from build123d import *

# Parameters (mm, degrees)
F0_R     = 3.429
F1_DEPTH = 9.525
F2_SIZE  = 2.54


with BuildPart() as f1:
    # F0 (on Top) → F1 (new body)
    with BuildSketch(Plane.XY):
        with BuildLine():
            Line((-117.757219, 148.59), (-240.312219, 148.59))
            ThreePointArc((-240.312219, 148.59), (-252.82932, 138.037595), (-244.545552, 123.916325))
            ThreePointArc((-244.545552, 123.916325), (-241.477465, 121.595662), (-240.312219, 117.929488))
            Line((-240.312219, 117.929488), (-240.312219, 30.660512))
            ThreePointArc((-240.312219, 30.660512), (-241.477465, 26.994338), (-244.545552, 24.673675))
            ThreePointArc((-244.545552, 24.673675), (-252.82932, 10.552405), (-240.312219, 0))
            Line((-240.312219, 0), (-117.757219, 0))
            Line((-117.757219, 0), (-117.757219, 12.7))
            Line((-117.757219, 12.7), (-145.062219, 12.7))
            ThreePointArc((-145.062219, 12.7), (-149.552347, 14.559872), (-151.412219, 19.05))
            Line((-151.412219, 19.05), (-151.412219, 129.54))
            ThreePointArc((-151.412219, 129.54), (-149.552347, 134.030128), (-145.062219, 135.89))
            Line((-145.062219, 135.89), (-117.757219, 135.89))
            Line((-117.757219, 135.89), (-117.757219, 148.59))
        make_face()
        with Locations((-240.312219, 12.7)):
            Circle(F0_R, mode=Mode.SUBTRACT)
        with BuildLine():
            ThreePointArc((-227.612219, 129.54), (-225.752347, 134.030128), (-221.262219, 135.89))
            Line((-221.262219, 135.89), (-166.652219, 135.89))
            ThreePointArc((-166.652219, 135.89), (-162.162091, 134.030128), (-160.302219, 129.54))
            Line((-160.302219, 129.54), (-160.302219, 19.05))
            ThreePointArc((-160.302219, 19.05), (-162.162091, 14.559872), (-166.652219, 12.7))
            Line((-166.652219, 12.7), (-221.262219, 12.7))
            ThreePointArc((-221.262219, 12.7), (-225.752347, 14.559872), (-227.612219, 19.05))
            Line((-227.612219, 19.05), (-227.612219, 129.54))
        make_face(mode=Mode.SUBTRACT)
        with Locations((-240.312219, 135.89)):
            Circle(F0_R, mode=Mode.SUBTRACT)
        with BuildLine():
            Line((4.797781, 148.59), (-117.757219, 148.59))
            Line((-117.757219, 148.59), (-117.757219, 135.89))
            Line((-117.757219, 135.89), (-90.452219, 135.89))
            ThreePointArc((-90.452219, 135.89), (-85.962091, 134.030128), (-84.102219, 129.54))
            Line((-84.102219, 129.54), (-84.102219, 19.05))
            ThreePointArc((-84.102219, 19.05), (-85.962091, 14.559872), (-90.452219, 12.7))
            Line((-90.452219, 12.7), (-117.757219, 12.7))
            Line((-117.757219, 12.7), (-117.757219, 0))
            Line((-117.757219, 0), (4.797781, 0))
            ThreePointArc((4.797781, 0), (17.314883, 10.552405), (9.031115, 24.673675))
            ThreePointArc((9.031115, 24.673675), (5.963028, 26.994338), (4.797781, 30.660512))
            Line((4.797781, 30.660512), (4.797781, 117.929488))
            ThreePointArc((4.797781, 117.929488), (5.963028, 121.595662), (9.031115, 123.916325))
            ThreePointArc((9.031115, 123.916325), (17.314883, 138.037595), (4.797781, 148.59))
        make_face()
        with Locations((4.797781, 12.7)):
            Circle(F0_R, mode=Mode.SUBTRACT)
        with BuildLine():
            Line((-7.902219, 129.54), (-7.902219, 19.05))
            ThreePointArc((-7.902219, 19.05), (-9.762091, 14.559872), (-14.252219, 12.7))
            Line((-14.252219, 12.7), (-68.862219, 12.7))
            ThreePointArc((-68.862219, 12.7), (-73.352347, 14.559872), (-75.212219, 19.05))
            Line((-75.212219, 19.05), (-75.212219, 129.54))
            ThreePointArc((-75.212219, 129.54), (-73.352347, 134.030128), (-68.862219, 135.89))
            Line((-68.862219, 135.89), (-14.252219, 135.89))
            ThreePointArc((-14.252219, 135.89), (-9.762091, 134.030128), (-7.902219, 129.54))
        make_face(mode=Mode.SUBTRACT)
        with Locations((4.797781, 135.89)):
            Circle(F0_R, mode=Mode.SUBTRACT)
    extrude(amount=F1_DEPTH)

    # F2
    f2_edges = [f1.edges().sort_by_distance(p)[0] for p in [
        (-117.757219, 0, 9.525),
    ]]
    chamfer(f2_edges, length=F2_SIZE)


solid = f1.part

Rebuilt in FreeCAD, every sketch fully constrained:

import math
import FreeCAD as App
import Part
import Sketcher

V = App.Vector
Q = App.Units.Quantity


def edges_at(feature, points):
    """Names of the edges that pass closest to the given points."""
    edges = feature.Shape.Edges
    near = lambda p: min(range(len(edges)), key=lambda i: edges[i].distToShape(Part.Vertex(*p))[0])
    return sorted({f"Edge{near(p) + 1}" for p in points})

doc = App.newDocument("Part")
body = doc.addObject("PartDesign::Body", "Body")

# Sketch on XY plane
sketch1 = body.newObject("Sketcher::SketchObject", "Sketch")
sketch1.AttachmentSupport = (doc.getObject("XY_Plane"), [""])
sketch1.MapMode = "FlatFace"
sketch1.addGeometry([
    Part.ArcOfCircle(Part.Circle(V(-240.3, 135.9, 0), V(0, 0, 1), 12.7), math.radians(90), math.radians(251)),  # 0
    Part.ArcOfCircle(Part.Circle(V(-246.7, 117.9, 0), V(0, 0, 1), 6.3), math.radians(0), math.radians(71)),  # 1
    Part.LineSegment(V(-240.3, 117.9, 0), V(-240.3, 30.7, 0)),  # 2
    Part.ArcOfCircle(Part.Circle(V(-246.7, 30.7, 0), V(0, 0, 1), 6.3), math.radians(-71), math.radians(0)),  # 3
    Part.ArcOfCircle(Part.Circle(V(-240.3, 12.7, 0), V(0, 0, 1), 12.7), math.radians(109), math.radians(270)),  # 4
    Part.LineSegment(V(-240.3, 0, 0), V(4.8, 0, 0)),  # 5
    Part.ArcOfCircle(Part.Circle(V(4.8, 12.7, 0), V(0, 0, 1), 12.7), math.radians(-90), math.radians(71)),  # 6
    Part.ArcOfCircle(Part.Circle(V(11.1, 30.7, 0), V(0, 0, 1), 6.3), math.radians(-180), math.radians(-109)),  # 7
    Part.LineSegment(V(4.8, 30.7, 0), V(4.8, 117.9, 0)),  # 8
    Part.ArcOfCircle(Part.Circle(V(11.1, 117.9, 0), V(0, 0, 1), 6.3), math.radians(109), math.radians(180)),  # 9
    Part.ArcOfCircle(Part.Circle(V(4.8, 135.9, 0), V(0, 0, 1), 12.7), math.radians(-71), math.radians(90)),  # 10
    Part.LineSegment(V(4.8, 148.6, 0), V(-240.3, 148.6, 0)),  # 11
    Part.Circle(V(-240.3, 12.7, 0), V(0, 0, 1), 3.4),  # 12
    Part.LineSegment(V(-227.6, 19.1, 0), V(-227.6, 129.5, 0)),  # 13
    Part.ArcOfCircle(Part.Circle(V(-221.3, 129.5, 0), V(0, 0, 1), 6.4), math.radians(90), math.radians(180)),  # 14
    Part.LineSegment(V(-221.3, 135.9, 0), V(-166.7, 135.9, 0)),  # 15
    Part.ArcOfCircle(Part.Circle(V(-166.7, 129.5, 0), V(0, 0, 1), 6.4), math.radians(0), math.radians(90)),  # 16
    Part.LineSegment(V(-160.3, 129.5, 0), V(-160.3, 19.1, 0)),  # 17
    Part.ArcOfCircle(Part.Circle(V(-166.7, 19.1, 0), V(0, 0, 1), 6.4), math.radians(-90), math.radians(0)),  # 18
    Part.LineSegment(V(-166.7, 12.7, 0), V(-221.3, 12.7, 0)),  # 19
    Part.ArcOfCircle(Part.Circle(V(-221.3, 19.1, 0), V(0, 0, 1), 6.4), math.radians(-180), math.radians(-90)),  # 20
    Part.Circle(V(4.8, 12.7, 0), V(0, 0, 1), 3.4),  # 21
    Part.LineSegment(V(-145.1, 135.9, 0), V(-90.5, 135.9, 0)),  # 22
    Part.ArcOfCircle(Part.Circle(V(-90.5, 129.5, 0), V(0, 0, 1), 6.4), math.radians(0), math.radians(90)),  # 23
    Part.LineSegment(V(-84.1, 129.5, 0), V(-84.1, 19.1, 0)),  # 24
    Part.ArcOfCircle(Part.Circle(V(-90.5, 19.1, 0), V(0, 0, 1), 6.4), math.radians(-90), math.radians(0)),  # 25
    Part.LineSegment(V(-90.5, 12.7, 0), V(-145.1, 12.7, 0)),  # 26
    Part.ArcOfCircle(Part.Circle(V(-145.1, 19.1, 0), V(0, 0, 1), 6.4), math.radians(-180), math.radians(-90)),  # 27
    Part.LineSegment(V(-151.4, 19.1, 0), V(-151.4, 129.5, 0)),  # 28
    Part.ArcOfCircle(Part.Circle(V(-145.1, 129.5, 0), V(0, 0, 1), 6.4), math.radians(90), math.radians(180)),  # 29
    Part.Circle(V(-240.3, 135.9, 0), V(0, 0, 1), 3.4),  # 30
    Part.ArcOfCircle(Part.Circle(V(-14.3, 129.5, 0), V(0, 0, 1), 6.4), math.radians(0), math.radians(90)),  # 31
    Part.LineSegment(V(-7.9, 129.5, 0), V(-7.9, 19.1, 0)),  # 32
    Part.ArcOfCircle(Part.Circle(V(-14.3, 19.1, 0), V(0, 0, 1), 6.4), math.radians(-90), math.radians(0)),  # 33
    Part.LineSegment(V(-14.3, 12.7, 0), V(-68.9, 12.7, 0)),  # 34
    Part.ArcOfCircle(Part.Circle(V(-68.9, 19.1, 0), V(0, 0, 1), 6.4), math.radians(-180), math.radians(-90)),  # 35
    Part.LineSegment(V(-75.2, 19.1, 0), V(-75.2, 129.5, 0)),  # 36
    Part.ArcOfCircle(Part.Circle(V(-68.9, 129.5, 0), V(0, 0, 1), 6.4), math.radians(90), math.radians(180)),  # 37
    Part.LineSegment(V(-68.9, 135.9, 0), V(-14.3, 135.9, 0)),  # 38
    Part.Circle(V(4.8, 135.9, 0), V(0, 0, 1), 3.4),  # 39
], False)
sketch1.addConstraint([
    Sketcher.Constraint("Tangent", 0, 2, 1, 2),
    Sketcher.Constraint("Tangent", 1, 1, 2, 1),
    Sketcher.Constraint("Tangent", 2, 2, 3, 2),
    Sketcher.Constraint("Tangent", 3, 1, 4, 1),
    Sketcher.Constraint("Tangent", 4, 2, 5, 1),
    Sketcher.Constraint("Tangent", 5, 2, 6, 1),
    Sketcher.Constraint("Tangent", 6, 2, 7, 2),
    Sketcher.Constraint("Tangent", 7, 1, 8, 1),
    Sketcher.Constraint("Tangent", 8, 2, 9, 2),
    Sketcher.Constraint("Tangent", 9, 1, 10, 1),
    Sketcher.Constraint("Tangent", 10, 2, 11, 1),
    Sketcher.Constraint("Tangent", 11, 2, 0, 1),
    Sketcher.Constraint("Tangent", 13, 2, 14, 2),
    Sketcher.Constraint("Tangent", 14, 1, 15, 1),
    Sketcher.Constraint("Tangent", 15, 2, 16, 2),
    Sketcher.Constraint("Tangent", 16, 1, 17, 1),
    Sketcher.Constraint("Tangent", 17, 2, 18, 2),
    Sketcher.Constraint("Tangent", 18, 1, 19, 1),
    Sketcher.Constraint("Tangent", 19, 2, 20, 2),
    Sketcher.Constraint("Tangent", 20, 1, 13, 1),
    Sketcher.Constraint("Tangent", 22, 2, 23, 2),
    Sketcher.Constraint("Tangent", 23, 1, 24, 1),
    Sketcher.Constraint("Tangent", 24, 2, 25, 2),
    Sketcher.Constraint("Tangent", 25, 1, 26, 1),
    Sketcher.Constraint("Tangent", 26, 2, 27, 2),
    Sketcher.Constraint("Tangent", 27, 1, 28, 1),
    Sketcher.Constraint("Tangent", 28, 2, 29, 2),
    Sketcher.Constraint("Tangent", 29, 1, 22, 1),
    Sketcher.Constraint("Tangent", 31, 1, 32, 1),
    Sketcher.Constraint("Tangent", 32, 2, 33, 2),
    Sketcher.Constraint("Tangent", 33, 1, 34, 1),
    Sketcher.Constraint("Tangent", 34, 2, 35, 2),
    Sketcher.Constraint("Tangent", 35, 1, 36, 1),
    Sketcher.Constraint("Tangent", 36, 2, 37, 2),
    Sketcher.Constraint("Tangent", 37, 1, 38, 1),
    Sketcher.Constraint("Tangent", 38, 2, 31, 2),
    Sketcher.Constraint("Vertical", 2),
    Sketcher.Constraint("Horizontal", 5),
    Sketcher.Constraint("Vertical", 8),
    Sketcher.Constraint("Horizontal", 11),
    Sketcher.Constraint("Vertical", 13),
    Sketcher.Constraint("Horizontal", 15),
    Sketcher.Constraint("Vertical", 17),
    Sketcher.Constraint("Horizontal", 19),
    Sketcher.Constraint("Horizontal", 22),
    Sketcher.Constraint("Vertical", 24),
    Sketcher.Constraint("Horizontal", 26),
    Sketcher.Constraint("Vertical", 28),
    Sketcher.Constraint("Vertical", 32),
    Sketcher.Constraint("Horizontal", 34),
    Sketcher.Constraint("Vertical", 36),
    Sketcher.Constraint("Horizontal", 38),
    Sketcher.Constraint("Coincident", 12, 3, 4, 3),
    Sketcher.Constraint("Coincident", 21, 3, 6, 3),
    Sketcher.Constraint("Coincident", 30, 3, 0, 3),
    Sketcher.Constraint("Coincident", 39, 3, 10, 3),
    Sketcher.Constraint("Equal", 1, 3),
    Sketcher.Constraint("Equal", 0, 4),
    Sketcher.Constraint("Equal", 4, 6),
    Sketcher.Constraint("Equal", 7, 9),
    Sketcher.Constraint("Equal", 6, 10),
    Sketcher.Constraint("Equal", 9, 14),
    Sketcher.Constraint("Equal", 14, 16),
    Sketcher.Constraint("Equal", 16, 18),
    Sketcher.Constraint("Equal", 18, 20),
    Sketcher.Constraint("Equal", 12, 21),
    Sketcher.Constraint("Equal", 20, 23),
    Sketcher.Constraint("Equal", 23, 25),
    Sketcher.Constraint("Equal", 25, 27),
    Sketcher.Constraint("Equal", 27, 29),
    Sketcher.Constraint("Equal", 21, 30),
    Sketcher.Constraint("Equal", 29, 31),
    Sketcher.Constraint("Equal", 31, 33),
    Sketcher.Constraint("Equal", 33, 35),
    Sketcher.Constraint("Equal", 35, 37),
    Sketcher.Constraint("Equal", 30, 39),
    Sketcher.Constraint("PointOnObject", 4, 2, -1),
    Sketcher.Constraint("Horizontal", 16, 3, 23, 3),
    Sketcher.Constraint("Horizontal", 20, 3, 25, 3),
    Sketcher.Constraint("Horizontal", 29, 3, 31, 3),
    Sketcher.Constraint("Horizontal", 27, 3, 33, 3),
    Sketcher.Constraint("Horizontal", 9, 3, 1, 1),
    Sketcher.Constraint("Horizontal", 7, 3, 2, 2),
    Sketcher.Constraint("Horizontal", 3, 1, 6, 2),
    Sketcher.Constraint("Horizontal", 39, 3, 14, 1),
    Sketcher.Constraint("Horizontal", 21, 3, 18, 1),
    Sketcher.Constraint("Vertical", 0, 3, 4, 3),
    Sketcher.Constraint("Vertical", 30, 3, 1, 1),
    Sketcher.Constraint("Equal", 19, 22),
    Sketcher.Constraint("Equal", 26, 34),
    Sketcher.Constraint("Radius", 0, Q("0.5 in")),
    Sketcher.Constraint("Diameter", 12, Q("0.27 in")),
    Sketcher.Constraint("Radius", 1, Q("0.2499999 in")),
    Sketcher.Constraint("DistanceX", 1, 3, 14, 3, Q("0.9999999 in")),
    Sketcher.Constraint("DistanceX", 16, 3, 23, 3, Q("3 in")),
    Sketcher.Constraint("DistanceX", 23, 3, 9, 3, Q("4 in")),
    Sketcher.Constraint("DistanceX", 31, 3, 9, 3, Q("1 in")),
    Sketcher.Constraint("DistanceX", 5, 1, 5, 2, Q("9.65 in")),
    Sketcher.Constraint("DistanceY", 13, 1, 13, 2, Q("4.35 in")),
    Sketcher.Constraint("DistanceX", 0, 3, -1, 1, 240.312218),
])
pad1 = body.newObject("PartDesign::Pad", "Pad")
pad1.Profile = sketch1
pad1.Length = Q("0.375 in")
doc.recompute()

chamfer = body.newObject("PartDesign::Chamfer", "Chamfer")
chamfer.Base = (pad1, edges_at(pad1, [(-117.757, 0, 9.525)]))
chamfer.Size = Q("0.1 in")

doc.recompute()
